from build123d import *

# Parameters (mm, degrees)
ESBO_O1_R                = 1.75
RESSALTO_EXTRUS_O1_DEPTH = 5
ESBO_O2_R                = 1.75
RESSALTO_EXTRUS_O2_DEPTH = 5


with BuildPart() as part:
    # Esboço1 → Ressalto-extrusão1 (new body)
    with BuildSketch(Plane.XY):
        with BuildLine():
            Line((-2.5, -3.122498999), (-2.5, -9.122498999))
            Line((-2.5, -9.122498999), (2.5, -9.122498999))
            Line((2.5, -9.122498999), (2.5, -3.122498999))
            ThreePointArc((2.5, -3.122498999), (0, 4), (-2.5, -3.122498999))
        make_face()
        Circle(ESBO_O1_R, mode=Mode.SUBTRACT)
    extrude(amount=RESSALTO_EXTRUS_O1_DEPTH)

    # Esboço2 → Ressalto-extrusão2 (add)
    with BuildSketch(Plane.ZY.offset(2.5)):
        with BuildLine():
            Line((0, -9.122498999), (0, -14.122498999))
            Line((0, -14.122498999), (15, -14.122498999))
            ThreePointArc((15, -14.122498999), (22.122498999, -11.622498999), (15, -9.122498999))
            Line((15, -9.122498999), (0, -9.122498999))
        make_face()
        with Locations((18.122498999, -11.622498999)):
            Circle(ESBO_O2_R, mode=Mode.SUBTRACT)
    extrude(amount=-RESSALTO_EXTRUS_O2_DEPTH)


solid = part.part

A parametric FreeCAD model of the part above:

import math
import FreeCAD as App
import Part
import Sketcher

V = App.Vector
Q = App.Units.Quantity

doc = App.newDocument("Part")
body = doc.addObject("PartDesign::Body", "Body")

# Sketch on XY plane
sketch1 = doc.addObject("Sketcher::SketchObject", "Sketch")
body.addObject(sketch1)
sketch1.AttachmentSupport = (doc.XY_Plane, [""])
sketch1.MapMode = "FlatFace"
sketch1.addGeometry([
    Part.LineSegment(V(-2.5, -3.1, 0), V(-2.5, -9.1, 0)),  # 0
    Part.LineSegment(V(-2.5, -9.1, 0), V(2.5, -9.1, 0)),  # 1
    Part.LineSegment(V(2.5, -9.1, 0), V(2.5, -3.1, 0)),  # 2
    Part.ArcOfCircle(Part.Circle(V(0, 0, 0), V(0, 0, 1), 4), math.radians(-51), math.radians(231)),  # 3
    Part.Circle(V(0, 0, 0), V(0, 0, 1), 1.8),  # 4
], False)
sketch1.addConstraint([
    Sketcher.Constraint("Coincident", 0, 2, 1, 1),
    Sketcher.Constraint("Coincident", 1, 2, 2, 1),
    Sketcher.Constraint("Coincident", 2, 2, 3, 1),
    Sketcher.Constraint("Coincident", 3, 2, 0, 1),
    Sketcher.Constraint("Vertical", 0),
    Sketcher.Constraint("Horizontal", 1),
    Sketcher.Constraint("Vertical", 2),
    Sketcher.Constraint("Coincident", 3, 3, -1, 1),
    Sketcher.Constraint("Coincident", 4, 3, -1, 1),
    Sketcher.Constraint("Horizontal", 2, 2, 3, 2),
    Sketcher.Constraint("Radius", 3, Q("4 mm")),
    Sketcher.Constraint("Diameter", 4, Q("3.5 mm")),
    Sketcher.Constraint("DistanceX", 1, 1, 1, 2, Q("5 mm")),
    Sketcher.Constraint("DistanceY", 0, 2, 0, 1, Q("6 mm")),
])
pad1 = doc.addObject("PartDesign::Pad", "Pad")
body.addObject(pad1)
pad1.Profile = sketch1
pad1.Length = 5

# Sketch on YZ plane
sketch2 = doc.addObject("Sketcher::SketchObject", "Sketch001")
body.addObject(sketch2)
sketch2.AttachmentSupport = (doc.YZ_Plane, [""])
sketch2.MapMode = "FlatFace"
sketch2.AttachmentOffset = App.Placement(V(0, 0, -2.5), App.Rotation())
sketch2.addGeometry([
    Part.LineSegment(V(-9.1, 0, 0), V(-14.1, 0, 0)),  # 0
    Part.LineSegment(V(-14.1, 0, 0), V(-14.1, 15, 0)),  # 1
    Part.ArcOfCircle(Part.Circle(V(-11.6, 18.1, 0), V(0, 0, 1), 4), math.radians(-51), math.radians(231)),  # 2
    Part.LineSegment(V(-9.1, 15, 0), V(-9.1, 0, 0)),  # 3
    Part.Circle(V(-11.6, 18.1, 0), V(0, 0, 1), 1.8),  # 4
], False)
sketch2.addConstraint([
    Sketcher.Constraint("Coincident", 0, 2, 1, 1),
    Sketcher.Constraint("Coincident", 1, 2, 2, 2),
    Sketcher.Constraint("Coincident", 2, 1, 3, 1),
    Sketcher.Constraint("Coincident", 3, 2, 0, 1),
    Sketcher.Constraint("Horizontal", 0),
    Sketcher.Constraint("Vertical", 1),
    Sketcher.Constraint("Vertical", 3),
    Sketcher.Constraint("Coincident", 4, 3, 2, 3),
    Sketcher.Constraint("PointOnObject", 0, 2, -1),
    Sketcher.Constraint("Horizontal", 1, 2, 2, 1),
    Sketcher.Constraint("Radius", 2, Q("4 mm")),
    Sketcher.Constraint("Diameter", 4, Q("3.5 mm")),
    Sketcher.Constraint("DistanceX", 0, 2, 0, 1, Q("5 mm")),
    Sketcher.Constraint("DistanceY", 1, 1, 1, 2, Q("15 mm")),
    Sketcher.Constraint("DistanceX", 2, 3, -1, 1, Q("11.622499 mm")),
])
pad2 = doc.addObject("PartDesign::Pad", "Pad001")
body.addObject(pad2)
pad2.Profile = sketch2
pad2.Length = 5

doc.recompute()
